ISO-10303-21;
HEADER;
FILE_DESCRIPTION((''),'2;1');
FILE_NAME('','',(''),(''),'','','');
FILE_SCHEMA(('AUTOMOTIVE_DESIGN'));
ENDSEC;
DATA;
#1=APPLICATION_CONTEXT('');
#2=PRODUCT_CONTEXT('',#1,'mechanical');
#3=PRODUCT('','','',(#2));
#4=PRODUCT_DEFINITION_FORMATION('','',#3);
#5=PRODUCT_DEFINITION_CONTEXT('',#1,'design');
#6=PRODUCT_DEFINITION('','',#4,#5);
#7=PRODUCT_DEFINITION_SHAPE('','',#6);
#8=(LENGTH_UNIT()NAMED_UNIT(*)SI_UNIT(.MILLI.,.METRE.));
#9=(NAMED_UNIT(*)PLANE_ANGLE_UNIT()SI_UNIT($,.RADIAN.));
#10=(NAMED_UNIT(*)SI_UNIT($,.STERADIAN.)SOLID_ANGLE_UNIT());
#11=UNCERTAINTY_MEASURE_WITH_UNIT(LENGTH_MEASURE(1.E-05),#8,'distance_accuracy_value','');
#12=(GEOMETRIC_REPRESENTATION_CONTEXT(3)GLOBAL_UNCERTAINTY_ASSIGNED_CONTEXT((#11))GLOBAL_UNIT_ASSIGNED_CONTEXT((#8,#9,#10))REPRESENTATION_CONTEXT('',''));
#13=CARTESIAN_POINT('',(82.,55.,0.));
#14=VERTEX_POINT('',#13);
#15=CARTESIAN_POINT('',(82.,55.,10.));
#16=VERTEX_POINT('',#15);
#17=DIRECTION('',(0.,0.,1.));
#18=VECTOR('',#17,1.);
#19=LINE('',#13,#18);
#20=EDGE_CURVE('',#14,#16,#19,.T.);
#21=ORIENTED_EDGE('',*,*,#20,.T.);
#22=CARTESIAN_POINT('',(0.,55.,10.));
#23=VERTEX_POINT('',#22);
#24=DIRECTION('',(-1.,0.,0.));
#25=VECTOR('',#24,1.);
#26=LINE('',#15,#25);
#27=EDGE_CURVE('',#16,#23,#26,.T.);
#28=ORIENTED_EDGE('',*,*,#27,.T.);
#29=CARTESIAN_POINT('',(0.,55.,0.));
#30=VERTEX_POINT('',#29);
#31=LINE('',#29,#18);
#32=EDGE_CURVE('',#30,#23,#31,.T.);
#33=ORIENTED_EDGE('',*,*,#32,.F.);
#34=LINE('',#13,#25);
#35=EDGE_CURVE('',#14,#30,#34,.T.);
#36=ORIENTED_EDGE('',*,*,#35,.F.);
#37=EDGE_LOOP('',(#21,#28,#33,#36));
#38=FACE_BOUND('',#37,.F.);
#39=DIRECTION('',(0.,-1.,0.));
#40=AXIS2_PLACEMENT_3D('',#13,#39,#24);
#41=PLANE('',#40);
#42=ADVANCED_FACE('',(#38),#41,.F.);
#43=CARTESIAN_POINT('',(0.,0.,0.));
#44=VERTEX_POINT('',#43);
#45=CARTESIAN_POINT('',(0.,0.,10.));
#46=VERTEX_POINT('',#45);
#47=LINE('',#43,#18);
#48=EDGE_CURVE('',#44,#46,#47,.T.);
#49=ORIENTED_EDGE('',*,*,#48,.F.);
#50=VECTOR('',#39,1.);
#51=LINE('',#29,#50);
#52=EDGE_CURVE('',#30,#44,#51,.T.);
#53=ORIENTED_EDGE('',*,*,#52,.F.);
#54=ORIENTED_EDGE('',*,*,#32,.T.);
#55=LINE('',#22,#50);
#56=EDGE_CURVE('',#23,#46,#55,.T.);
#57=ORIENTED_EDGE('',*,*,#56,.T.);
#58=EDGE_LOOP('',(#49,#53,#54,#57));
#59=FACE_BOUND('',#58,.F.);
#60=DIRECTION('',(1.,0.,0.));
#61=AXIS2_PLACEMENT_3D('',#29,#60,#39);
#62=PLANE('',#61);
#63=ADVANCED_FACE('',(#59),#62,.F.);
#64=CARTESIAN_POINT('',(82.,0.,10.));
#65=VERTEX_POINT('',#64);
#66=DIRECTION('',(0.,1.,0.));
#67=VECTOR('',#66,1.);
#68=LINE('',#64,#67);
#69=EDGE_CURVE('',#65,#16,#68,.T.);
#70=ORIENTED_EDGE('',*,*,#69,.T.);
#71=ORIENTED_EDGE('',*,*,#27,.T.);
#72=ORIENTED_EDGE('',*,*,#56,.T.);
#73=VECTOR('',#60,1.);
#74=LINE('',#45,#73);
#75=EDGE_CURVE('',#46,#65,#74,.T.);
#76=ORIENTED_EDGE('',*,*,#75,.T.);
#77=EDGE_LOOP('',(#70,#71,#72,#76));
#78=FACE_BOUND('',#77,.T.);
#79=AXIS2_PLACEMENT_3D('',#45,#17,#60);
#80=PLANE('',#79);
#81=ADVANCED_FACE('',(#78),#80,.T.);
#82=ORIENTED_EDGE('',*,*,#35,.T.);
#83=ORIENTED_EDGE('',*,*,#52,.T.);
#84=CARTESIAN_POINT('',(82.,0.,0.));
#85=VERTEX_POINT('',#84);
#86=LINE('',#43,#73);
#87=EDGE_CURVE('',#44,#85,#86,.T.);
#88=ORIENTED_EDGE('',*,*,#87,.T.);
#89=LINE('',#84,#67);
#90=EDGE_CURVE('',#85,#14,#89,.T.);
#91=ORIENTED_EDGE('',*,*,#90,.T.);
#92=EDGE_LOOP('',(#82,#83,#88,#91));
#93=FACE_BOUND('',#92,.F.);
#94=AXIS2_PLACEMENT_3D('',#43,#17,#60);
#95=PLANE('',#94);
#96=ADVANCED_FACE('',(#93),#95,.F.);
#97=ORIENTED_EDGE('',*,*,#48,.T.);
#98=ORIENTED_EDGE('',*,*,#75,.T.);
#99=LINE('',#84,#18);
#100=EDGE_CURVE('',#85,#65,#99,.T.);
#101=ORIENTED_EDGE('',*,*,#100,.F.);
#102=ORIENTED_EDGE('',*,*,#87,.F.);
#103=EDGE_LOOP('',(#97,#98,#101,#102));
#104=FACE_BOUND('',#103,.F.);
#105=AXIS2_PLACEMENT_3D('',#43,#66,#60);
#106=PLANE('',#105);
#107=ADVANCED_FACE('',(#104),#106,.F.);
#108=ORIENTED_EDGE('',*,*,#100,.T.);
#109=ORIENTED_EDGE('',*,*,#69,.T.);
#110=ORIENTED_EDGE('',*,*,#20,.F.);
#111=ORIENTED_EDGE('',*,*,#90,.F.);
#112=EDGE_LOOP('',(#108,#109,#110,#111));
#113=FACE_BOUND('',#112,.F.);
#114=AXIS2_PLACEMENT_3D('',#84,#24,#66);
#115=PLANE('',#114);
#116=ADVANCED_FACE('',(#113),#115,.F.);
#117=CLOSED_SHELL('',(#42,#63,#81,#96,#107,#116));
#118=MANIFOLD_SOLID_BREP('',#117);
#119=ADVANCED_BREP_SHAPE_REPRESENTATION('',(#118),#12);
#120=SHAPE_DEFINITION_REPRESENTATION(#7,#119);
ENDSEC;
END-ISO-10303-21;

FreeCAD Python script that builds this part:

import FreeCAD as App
import Part
import Sketcher


def add_polygon(sketch, points):
    """Adds a closed chain of lines whose ends are joined by coincident constraints."""
    first, n = sketch.GeometryCount, len(points)
    for a, b in zip(points, points[1:] + points[:1]):
        sketch.addGeometry(Part.LineSegment(App.Vector(*a, 0), App.Vector(*b, 0)), False)
    for i in range(n):
        sketch.addConstraint(Sketcher.Constraint("Coincident", first + i, 2, first + (i + 1) % n, 1))

doc = App.newDocument("Part")
body = doc.addObject("PartDesign::Body", "Body")

# Sketch on XY plane
sketch1 = body.newObject("Sketcher::SketchObject", "Sketch")
sketch1.AttachmentSupport = (doc.getObject("XY_Plane"), [""])
sketch1.MapMode = "FlatFace"
add_polygon(sketch1, [(0, 55), (0, 0), (82, 0), (82, 55)])  # lines 0-3
sketch1.addConstraint([
    Sketcher.Constraint("Vertical", 0),
    Sketcher.Constraint("Horizontal", 1),
    Sketcher.Constraint("Vertical", 2),
    Sketcher.Constraint("Horizontal", 3),
    Sketcher.Constraint("Coincident", 0, 2, -1, 1),
    Sketcher.Constraint("DistanceX", 1, 1, 1, 2, 82.0),
    Sketcher.Constraint("DistanceY", 0, 2, 0, 1, 55.0),
])
pad1 = body.newObject("PartDesign::Pad", "Pad")
pad1.Profile = sketch1
pad1.Length = 10

doc.recompute()
